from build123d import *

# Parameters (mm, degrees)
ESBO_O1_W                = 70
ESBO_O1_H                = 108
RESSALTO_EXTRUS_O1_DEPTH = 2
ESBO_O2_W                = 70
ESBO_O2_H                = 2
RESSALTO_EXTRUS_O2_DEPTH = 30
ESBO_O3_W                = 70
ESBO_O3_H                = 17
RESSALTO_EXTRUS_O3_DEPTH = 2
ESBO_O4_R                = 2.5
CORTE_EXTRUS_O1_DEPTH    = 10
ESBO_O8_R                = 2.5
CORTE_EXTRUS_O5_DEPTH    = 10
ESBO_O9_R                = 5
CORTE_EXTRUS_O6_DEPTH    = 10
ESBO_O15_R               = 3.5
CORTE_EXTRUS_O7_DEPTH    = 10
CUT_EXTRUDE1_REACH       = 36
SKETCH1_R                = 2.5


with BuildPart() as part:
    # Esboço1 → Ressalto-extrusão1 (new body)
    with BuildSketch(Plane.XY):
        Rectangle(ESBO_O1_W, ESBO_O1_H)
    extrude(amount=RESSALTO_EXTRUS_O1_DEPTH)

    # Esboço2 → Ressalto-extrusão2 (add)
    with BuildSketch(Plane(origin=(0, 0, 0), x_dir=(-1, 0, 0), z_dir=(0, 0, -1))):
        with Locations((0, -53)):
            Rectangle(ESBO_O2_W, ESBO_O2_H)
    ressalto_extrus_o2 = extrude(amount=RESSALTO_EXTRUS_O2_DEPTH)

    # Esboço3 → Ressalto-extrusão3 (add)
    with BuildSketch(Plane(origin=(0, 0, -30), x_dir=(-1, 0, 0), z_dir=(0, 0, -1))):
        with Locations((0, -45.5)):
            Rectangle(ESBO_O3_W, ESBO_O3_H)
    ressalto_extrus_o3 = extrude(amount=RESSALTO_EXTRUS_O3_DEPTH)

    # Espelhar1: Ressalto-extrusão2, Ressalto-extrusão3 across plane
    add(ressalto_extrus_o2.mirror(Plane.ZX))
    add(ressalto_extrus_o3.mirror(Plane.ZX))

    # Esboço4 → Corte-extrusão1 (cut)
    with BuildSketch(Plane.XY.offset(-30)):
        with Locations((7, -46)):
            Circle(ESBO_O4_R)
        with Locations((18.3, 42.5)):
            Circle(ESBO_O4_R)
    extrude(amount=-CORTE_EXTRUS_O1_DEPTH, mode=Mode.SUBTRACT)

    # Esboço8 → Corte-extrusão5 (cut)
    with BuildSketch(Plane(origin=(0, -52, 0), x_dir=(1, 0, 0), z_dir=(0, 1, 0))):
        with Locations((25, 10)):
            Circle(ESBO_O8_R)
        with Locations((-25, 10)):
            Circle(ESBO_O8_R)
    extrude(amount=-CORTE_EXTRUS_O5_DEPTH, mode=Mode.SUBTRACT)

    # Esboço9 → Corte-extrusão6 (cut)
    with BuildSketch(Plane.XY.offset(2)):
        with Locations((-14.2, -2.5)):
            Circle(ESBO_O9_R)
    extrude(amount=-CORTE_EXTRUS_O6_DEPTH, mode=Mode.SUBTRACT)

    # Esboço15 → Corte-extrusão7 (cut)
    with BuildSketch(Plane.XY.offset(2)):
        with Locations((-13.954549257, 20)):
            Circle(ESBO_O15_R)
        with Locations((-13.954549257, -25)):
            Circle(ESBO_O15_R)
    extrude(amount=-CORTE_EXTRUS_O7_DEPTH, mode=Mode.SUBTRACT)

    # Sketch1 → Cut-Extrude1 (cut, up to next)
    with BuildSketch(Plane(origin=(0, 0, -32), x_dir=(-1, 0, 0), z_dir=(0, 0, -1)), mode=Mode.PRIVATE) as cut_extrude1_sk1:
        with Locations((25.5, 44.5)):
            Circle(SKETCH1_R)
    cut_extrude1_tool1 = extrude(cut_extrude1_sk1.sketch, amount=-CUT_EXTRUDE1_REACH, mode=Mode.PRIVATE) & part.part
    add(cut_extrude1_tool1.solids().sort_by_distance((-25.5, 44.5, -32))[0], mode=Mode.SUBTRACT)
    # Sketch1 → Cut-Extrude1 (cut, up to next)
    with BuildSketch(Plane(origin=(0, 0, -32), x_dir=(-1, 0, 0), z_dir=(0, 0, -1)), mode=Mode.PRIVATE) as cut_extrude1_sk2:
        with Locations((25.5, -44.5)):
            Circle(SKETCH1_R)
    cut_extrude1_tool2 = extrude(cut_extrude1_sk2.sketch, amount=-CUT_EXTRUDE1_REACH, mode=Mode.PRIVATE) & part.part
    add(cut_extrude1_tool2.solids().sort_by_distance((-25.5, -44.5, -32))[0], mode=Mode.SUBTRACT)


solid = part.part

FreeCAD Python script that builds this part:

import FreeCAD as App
import Part
import Sketcher
from FreeCAD import Vector


def add_polygon(sketch, points):
    """Adds a closed chain of lines whose ends are joined by coincident constraints."""
    first, n = sketch.GeometryCount, len(points)
    for a, b in zip(points, points[1:] + points[:1]):
        sketch.addGeometry(Part.LineSegment(App.Vector(*a, 0), App.Vector(*b, 0)), False)
    for i in range(n):
        sketch.addConstraint(Sketcher.Constraint("Coincident", first + i, 2, first + (i + 1) % n, 1))

doc = App.newDocument("Part")
body = doc.addObject("PartDesign::Body", "Body")

sketch1 = body.newObject("Sketcher::SketchObject", "Sketch")
sketch1.AttachmentSupport = (doc.getObject("XY_Plane"), [""])
sketch1.MapMode = "FlatFace"
add_polygon(sketch1, [(-35, 54), (-35, -54), (35, -54), (35, 54)])
sketch1.addConstraint(Sketcher.Constraint("Vertical", 0))
sketch1.addConstraint(Sketcher.Constraint("Horizontal", 1))
sketch1.addConstraint(Sketcher.Constraint("Vertical", 2))
sketch1.addConstraint(Sketcher.Constraint("Horizontal", 3))
sketch1.addConstraint(Sketcher.Constraint("Symmetric", 0, 2, 2, 2, -1, 1))
sketch1.addConstraint(Sketcher.Constraint("DistanceX", 1, 1, 1, 2, 70.0))
sketch1.addConstraint(Sketcher.Constraint("DistanceY", 0, 2, 0, 1, 108.0))
pad1 = body.newObject("PartDesign::Pad", "Pad")
pad1.Profile = sketch1
pad1.Length = 2

sketch2 = body.newObject("Sketcher::SketchObject", "Sketch001")
sketch2.AttachmentSupport = (doc.getObject("XY_Plane"), [""])
sketch2.MapMode = "FlatFace"
add_polygon(sketch2, [(35, -52), (35, -54), (-35, -54), (-35, -52)])
sketch2.addConstraint(Sketcher.Constraint("Vertical", 0))
sketch2.addConstraint(Sketcher.Constraint("Horizontal", 1))
sketch2.addConstraint(Sketcher.Constraint("Vertical", 2))
sketch2.addConstraint(Sketcher.Constraint("Horizontal", 3))
sketch2.addConstraint(Sketcher.Constraint("DistanceX", 1, 2, 1, 1, 70.0))
sketch2.addConstraint(Sketcher.Constraint("DistanceY", 0, 2, 0, 1, 2.0))
sketch2.addConstraint(Sketcher.Constraint("DistanceX", -1, 1, 0, 2, 35.0))
sketch2.addConstraint(Sketcher.Constraint("DistanceY", 0, 2, -1, 1, 54.0))
pad2 = body.newObject("PartDesign::Pad", "Pad001")
pad2.Profile = sketch2
pad2.Length = 30
pad2.Reversed = True

sketch3 = body.newObject("Sketcher::SketchObject", "Sketch002")
sketch3.AttachmentSupport = (doc.getObject("XY_Plane"), [""])
sketch3.MapMode = "FlatFace"
sketch3.AttachmentOffset = App.Placement(Vector(0, 0, -30), App.Rotation())
add_polygon(sketch3, [(35, -37), (35, -54), (-35, -54), (-35, -37)])
sketch3.addConstraint(Sketcher.Constraint("Vertical", 0))
sketch3.addConstraint(Sketcher.Constraint("Horizontal", 1))
sketch3.addConstraint(Sketcher.Constraint("Vertical", 2))
sketch3.addConstraint(Sketcher.Constraint("Horizontal", 3))
sketch3.addConstraint(Sketcher.Constraint("DistanceX", 1, 2, 1, 1, 70.0))
sketch3.addConstraint(Sketcher.Constraint("DistanceY", 0, 2, 0, 1, 17.0))
sketch3.addConstraint(Sketcher.Constraint("DistanceX", -1, 1, 0, 2, 35.0))
sketch3.addConstraint(Sketcher.Constraint("DistanceY", 0, 2, -1, 1, 54.0))
pad3 = body.newObject("PartDesign::Pad", "Pad002")
pad3.Profile = sketch3
pad3.Length = 2
pad3.Reversed = True
doc.recompute()

mirrored = body.newObject("PartDesign::Mirrored", "Mirrored")
mirrored.Originals = [pad2, pad3]
mirrored.MirrorPlane = (doc.getObject("XZ_Plane"), [""])
body.Tip = mirrored

sketch4 = body.newObject("Sketcher::SketchObject", "Sketch003")
sketch4.AttachmentSupport = (doc.getObject("XY_Plane"), [""])
sketch4.MapMode = "FlatFace"
sketch4.AttachmentOffset = App.Placement(Vector(0, 0, -30), App.Rotation())
sketch4.addGeometry(Part.Circle(Vector(7, -46, 0), Vector(0, 0, 1), 2.5), False)
sketch4.addGeometry(Part.Circle(Vector(18.3, 42.5, 0), Vector(0, 0, 1), 2.5), False)
sketch4.addConstraint(Sketcher.Constraint("Equal", 0, 1))
sketch4.addConstraint(Sketcher.Constraint("Diameter", 0, 5.0))
sketch4.addConstraint(Sketcher.Constraint("DistanceX", -1, 1, 0, 3, 7.0))
sketch4.addConstraint(Sketcher.Constraint("DistanceY", 0, 3, -1, 1, 46.0))
sketch4.addConstraint(Sketcher.Constraint("DistanceX", -1, 1, 1, 3, 18.3))
sketch4.addConstraint(Sketcher.Constraint("DistanceY", -1, 1, 1, 3, 42.5))
pocket1 = body.newObject("PartDesign::Pocket", "Pocket")
pocket1.Profile = sketch4
pocket1.Length = 10

sketch5 = body.newObject("Sketcher::SketchObject", "Sketch004")
sketch5.AttachmentSupport = (doc.getObject("XZ_Plane"), [""])
sketch5.MapMode = "FlatFace"
sketch5.AttachmentOffset = App.Placement(Vector(0, 0, 52), App.Rotation())
sketch5.addGeometry(Part.Circle(Vector(25, -10, 0), Vector(0, 0, 1), 2.5), False)
sketch5.addGeometry(Part.Circle(Vector(-25, -10, 0), Vector(0, 0, 1), 2.5), False)
sketch5.addConstraint(Sketcher.Constraint("Equal", 0, 1))
sketch5.addConstraint(Sketcher.Constraint("Symmetric", 0, 3, 1, 3, -2))
sketch5.addConstraint(Sketcher.Constraint("Diameter", 0, 5.0))
sketch5.addConstraint(Sketcher.Constraint("DistanceX", -1, 1, 0, 3, 25.0))
sketch5.addConstraint(Sketcher.Constraint("DistanceY", 0, 3, -1, 1, 10.0))
pocket2 = body.newObject("PartDesign::Pocket", "Pocket001")
pocket2.Profile = sketch5
pocket2.Length = 10
pocket2.Reversed = True

sketch6 = body.newObject("Sketcher::SketchObject", "Sketch005")
sketch6.AttachmentSupport = (doc.getObject("XY_Plane"), [""])
sketch6.MapMode = "FlatFace"
sketch6.AttachmentOffset = App.Placement(Vector(0, 0, 2), App.Rotation())
sketch6.addGeometry(Part.Circle(Vector(-14, -2, 0), Vector(0, 0, 1), 5), False)
sketch6.addConstraint(Sketcher.Constraint("Diameter", 0, 10.0))
sketch6.addConstraint(Sketcher.Constraint("DistanceX", 0, 3, -1, 1, 14.2))
sketch6.addConstraint(Sketcher.Constraint("DistanceY", 0, 3, -1, 1, 2.5))
pocket3 = body.newObject("PartDesign::Pocket", "Pocket002")
pocket3.Profile = sketch6
pocket3.Length = 10

sketch7 = body.newObject("Sketcher::SketchObject", "Sketch006")
sketch7.AttachmentSupport = (doc.getObject("XY_Plane"), [""])
sketch7.MapMode = "FlatFace"
sketch7.AttachmentOffset = App.Placement(Vector(0, 0, 2), App.Rotation())
sketch7.addGeometry(Part.Circle(Vector(-14, 20, 0), Vector(0, 0, 1), 3.5), False)
sketch7.addGeometry(Part.Circle(Vector(-14, -25, 0), Vector(0, 0, 1), 3.5), False)
sketch7.addConstraint(Sketcher.Constraint("Equal", 0, 1))
sketch7.addConstraint(Sketcher.Constraint("Vertical", 0, 3, 1, 3))
sketch7.addConstraint(Sketcher.Constraint("Diameter", 0, 7.0))
sketch7.addConstraint(Sketcher.Constraint("DistanceY", -1, 1, 0, 3, 20.0))
sketch7.addConstraint(Sketcher.Constraint("DistanceY", 1, 3, -1, 1, 25.0))
sketch7.addConstraint(Sketcher.Constraint("DistanceX", 0, 3, -1, 1, 13.954549))
pocket4 = body.newObject("PartDesign::Pocket", "Pocket003")
pocket4.Profile = sketch7
pocket4.Length = 10

sketch8 = body.newObject("Sketcher::SketchObject", "Sketch007")
sketch8.AttachmentSupport = (doc.getObject("XY_Plane"), [""])
sketch8.MapMode = "FlatFace"
sketch8.AttachmentOffset = App.Placement(Vector(0, 0, -32), App.Rotation())
sketch8.addGeometry(Part.Circle(Vector(-25.5, 44.5, 0), Vector(0, 0, 1), 2.5), False)
sketch8.addConstraint(Sketcher.Constraint("Diameter", 0, 5.0))
sketch8.addConstraint(Sketcher.Constraint("DistanceX", 0, 3, -1, 1, 25.5))
sketch8.addConstraint(Sketcher.Constraint("DistanceY", -1, 1, 0, 3, 44.5))
pocket5 = body.newObject("PartDesign::Pocket", "Pocket004")
pocket5.Profile = sketch8
pocket5.Type = "UpToFirst"
pocket5.Reversed = True

sketch9 = body.newObject("Sketcher::SketchObject", "Sketch008")
sketch9.AttachmentSupport = (doc.getObject("XY_Plane"), [""])
sketch9.MapMode = "FlatFace"
sketch9.AttachmentOffset = App.Placement(Vector(0, 0, -32), App.Rotation())
sketch9.addGeometry(Part.Circle(Vector(-25.5, -44.5, 0), Vector(0, 0, 1), 2.5), False)
sketch9.addConstraint(Sketcher.Constraint("Diameter", 0, 5.0))
sketch9.addConstraint(Sketcher.Constraint("DistanceX", 0, 3, -1, 1, 25.5))
sketch9.addConstraint(Sketcher.Constraint("DistanceY", 0, 3, -1, 1, 44.5))
pocket6 = body.newObject("PartDesign::Pocket", "Pocket005")
pocket6.Profile = sketch9
pocket6.Type = "UpToFirst"
pocket6.Reversed = True

doc.recompute()
